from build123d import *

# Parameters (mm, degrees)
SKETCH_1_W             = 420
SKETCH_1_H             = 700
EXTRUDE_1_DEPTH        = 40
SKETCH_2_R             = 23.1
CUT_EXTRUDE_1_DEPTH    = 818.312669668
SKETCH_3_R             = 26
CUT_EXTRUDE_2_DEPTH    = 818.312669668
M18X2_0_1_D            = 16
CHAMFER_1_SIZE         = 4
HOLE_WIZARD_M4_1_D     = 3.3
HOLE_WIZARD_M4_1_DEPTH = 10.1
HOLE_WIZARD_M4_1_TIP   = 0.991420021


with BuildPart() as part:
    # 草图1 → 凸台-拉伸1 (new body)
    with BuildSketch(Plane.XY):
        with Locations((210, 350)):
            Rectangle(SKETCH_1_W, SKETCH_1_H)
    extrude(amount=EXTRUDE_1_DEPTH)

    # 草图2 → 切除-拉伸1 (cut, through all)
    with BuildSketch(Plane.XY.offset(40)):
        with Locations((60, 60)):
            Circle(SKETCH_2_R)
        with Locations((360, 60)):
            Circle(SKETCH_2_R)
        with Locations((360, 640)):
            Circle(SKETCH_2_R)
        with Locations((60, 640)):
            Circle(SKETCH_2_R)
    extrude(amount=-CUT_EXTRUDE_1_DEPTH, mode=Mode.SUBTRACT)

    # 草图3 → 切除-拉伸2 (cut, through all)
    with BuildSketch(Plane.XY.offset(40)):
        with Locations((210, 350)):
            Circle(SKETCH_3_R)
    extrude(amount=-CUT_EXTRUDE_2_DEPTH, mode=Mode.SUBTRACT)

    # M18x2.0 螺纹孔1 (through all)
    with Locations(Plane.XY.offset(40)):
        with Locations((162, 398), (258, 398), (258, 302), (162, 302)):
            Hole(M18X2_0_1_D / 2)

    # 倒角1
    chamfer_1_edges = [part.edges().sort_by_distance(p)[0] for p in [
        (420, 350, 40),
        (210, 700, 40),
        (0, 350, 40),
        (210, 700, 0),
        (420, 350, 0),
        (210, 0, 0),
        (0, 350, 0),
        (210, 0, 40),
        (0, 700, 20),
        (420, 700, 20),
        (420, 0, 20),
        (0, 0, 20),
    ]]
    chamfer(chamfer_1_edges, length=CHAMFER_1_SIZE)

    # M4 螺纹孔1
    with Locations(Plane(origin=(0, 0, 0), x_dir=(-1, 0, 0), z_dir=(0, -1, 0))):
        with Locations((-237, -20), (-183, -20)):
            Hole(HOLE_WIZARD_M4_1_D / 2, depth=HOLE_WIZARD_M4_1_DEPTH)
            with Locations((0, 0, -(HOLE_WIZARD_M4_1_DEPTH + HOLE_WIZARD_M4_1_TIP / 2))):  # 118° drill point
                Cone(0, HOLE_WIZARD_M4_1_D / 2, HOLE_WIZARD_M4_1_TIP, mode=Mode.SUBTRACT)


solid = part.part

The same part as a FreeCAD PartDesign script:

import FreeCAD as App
import Part
import Sketcher
Q = App.Units.Quantity


def edges_at(feature, points):
    """Names of the edges that pass closest to the given points."""
    edges = feature.Shape.Edges
    near = lambda p: min(range(len(edges)), key=lambda i: edges[i].distToShape(Part.Vertex(*p))[0])
    return sorted({f"Edge{near(p) + 1}" for p in points})


def add_polygon(sketch, points):
    """Adds a closed chain of lines whose ends are joined by coincident constraints."""
    first, n = sketch.GeometryCount, len(points)
    for a, b in zip(points, points[1:] + points[:1]):
        sketch.addGeometry(Part.LineSegment(App.Vector(*a, 0), App.Vector(*b, 0)), False)
    for i in range(n):
        sketch.addConstraint(Sketcher.Constraint("Coincident", first + i, 2, first + (i + 1) % n, 1))

doc = App.newDocument("Part")
params = doc.addObject("Spreadsheet::Sheet", "Params")
for row, (alias, value) in enumerate([
    ("sketch1_width", "420 mm"),
    ("sketch1_height", "700 mm"),
    ("pad1_length", "40 mm"),
    ("sketch2_diameter", "46.2 mm"),
    ("sketch3_diameter", "52 mm"),
    ("sketch4_diameter", "16 mm"),
    ("hole_diameter", "16 mm"),
    ("chamfer_size", "4 mm"),
    ("sketch5_diameter", "3.3 mm"),
    ("hole2_diameter", "3.3 mm"),
    ("hole2_depth", "10.1 mm"),
], start=1):
    params.set(f"A{row}", alias)
    params.set(f"B{row}", "=" + value)
    params.setAlias(f"B{row}", alias)

body = doc.addObject("PartDesign::Body", "Body")

# Sketch on XY plane
sketch1 = body.newObject("Sketcher::SketchObject", "Sketch")
sketch1.AttachmentSupport = (doc.getObject("XY_Plane"), [""])
sketch1.MapMode = "FlatFace"
add_polygon(sketch1, [(0, 700), (0, 0), (420, 0), (420, 700)])  # lines 0-3
sketch1.addConstraint(Sketcher.Constraint("Vertical", 0))
sketch1.addConstraint(Sketcher.Constraint("Horizontal", 1))
sketch1.addConstraint(Sketcher.Constraint("Vertical", 2))
sketch1.addConstraint(Sketcher.Constraint("Horizontal", 3))
sketch1.addConstraint(Sketcher.Constraint("Coincident", 0, 2, -1, 1))
sketch1.addConstraint(Sketcher.Constraint("DistanceX", 1, 1, 1, 2, Q("420 mm")))
sketch1.addConstraint(Sketcher.Constraint("DistanceY", 0, 2, 0, 1, Q("700 mm")))
sketch1.setExpression("Constraints[9]", "Params.sketch1_width")
sketch1.setExpression("Constraints[10]", "Params.sketch1_height")
pad1 = body.newObject("PartDesign::Pad", "Pad")
pad1.Profile = sketch1
pad1.setExpression("Length", "Params.pad1_length")

# Sketch on XY plane
sketch2 = body.newObject("Sketcher::SketchObject", "Sketch001")
sketch2.AttachmentSupport = (doc.getObject("XY_Plane"), [""])
sketch2.MapMode = "FlatFace"
sketch2.AttachmentOffset = App.Placement(App.Vector(0, 0, 40), App.Rotation())
sketch2.addGeometry(Part.Circle(App.Vector(60, 60, 0), App.Vector(0, 0, 1), 23), False)
sketch2.addGeometry(Part.Circle(App.Vector(360, 60, 0), App.Vector(0, 0, 1), 23), False)
sketch2.addGeometry(Part.Circle(App.Vector(360, 640, 0), App.Vector(0, 0, 1), 23), False)
sketch2.addGeometry(Part.Circle(App.Vector(60, 640, 0), App.Vector(0, 0, 1), 23), False)
sketch2.addConstraint(Sketcher.Constraint("Equal", 0, 1))
sketch2.addConstraint(Sketcher.Constraint("Equal", 1, 2))
sketch2.addConstraint(Sketcher.Constraint("Equal", 2, 3))
sketch2.addConstraint(Sketcher.Constraint("Horizontal", 0, 3, 1, 3))
sketch2.addConstraint(Sketcher.Constraint("Horizontal", 2, 3, 3, 3))
sketch2.addConstraint(Sketcher.Constraint("Vertical", 1, 3, 2, 3))
sketch2.addConstraint(Sketcher.Constraint("Vertical", 0, 3, 3, 3))
sketch2.addConstraint(Sketcher.Constraint("Diameter", 0, Q("46.2 mm")))
sketch2.addConstraint(Sketcher.Constraint("DistanceX", -1, 1, 0, 3, Q("60 mm")))
sketch2.addConstraint(Sketcher.Constraint("DistanceY", -1, 1, 0, 3, Q("60 mm")))
sketch2.addConstraint(Sketcher.Constraint("DistanceX", -1, 1, 1, 3, Q("360 mm")))
sketch2.addConstraint(Sketcher.Constraint("DistanceY", -1, 1, 2, 3, Q("640 mm")))
sketch2.setExpression("Constraints[7]", "Params.sketch2_diameter")
pocket1 = body.newObject("PartDesign::Pocket", "Pocket")
pocket1.Profile = sketch2
pocket1.Type = "ThroughAll"

# Sketch on XY plane
sketch3 = body.newObject("Sketcher::SketchObject", "Sketch002")
sketch3.AttachmentSupport = (doc.getObject("XY_Plane"), [""])
sketch3.MapMode = "FlatFace"
sketch3.AttachmentOffset = App.Placement(App.Vector(0, 0, 40), App.Rotation())
sketch3.addGeometry(Part.Circle(App.Vector(210, 350, 0), App.Vector(0, 0, 1), 26), False)
sketch3.addConstraint(Sketcher.Constraint("Diameter", 0, Q("52 mm")))
sketch3.addConstraint(Sketcher.Constraint("DistanceX", -1, 1, 0, 3, Q("210 mm")))
sketch3.addConstraint(Sketcher.Constraint("DistanceY", -1, 1, 0, 3, Q("350 mm")))
sketch3.setExpression("Constraints[0]", "Params.sketch3_diameter")
pocket2 = body.newObject("PartDesign::Pocket", "Pocket001")
pocket2.Profile = sketch3
pocket2.Type = "ThroughAll"

# Sketch on XY plane
sketch4 = body.newObject("Sketcher::SketchObject", "Sketch003")
sketch4.AttachmentSupport = (doc.getObject("XY_Plane"), [""])
sketch4.MapMode = "FlatFace"
sketch4.AttachmentOffset = App.Placement(App.Vector(0, 0, 40), App.Rotation())
sketch4.addGeometry(Part.Circle(App.Vector(162, 398, 0), App.Vector(0, 0, 1), 8), False)
sketch4.addGeometry(Part.Circle(App.Vector(258, 398, 0), App.Vector(0, 0, 1), 8), False)
sketch4.addGeometry(Part.Circle(App.Vector(258, 302, 0), App.Vector(0, 0, 1), 8), False)
sketch4.addGeometry(Part.Circle(App.Vector(162, 302, 0), App.Vector(0, 0, 1), 8), False)
sketch4.addConstraint(Sketcher.Constraint("Equal", 0, 1))
sketch4.addConstraint(Sketcher.Constraint("Equal", 1, 2))
sketch4.addConstraint(Sketcher.Constraint("Equal", 2, 3))
sketch4.addConstraint(Sketcher.Constraint("Horizontal", 0, 3, 1, 3))
sketch4.addConstraint(Sketcher.Constraint("Horizontal", 2, 3, 3, 3))
sketch4.addConstraint(Sketcher.Constraint("Vertical", 1, 3, 2, 3))
sketch4.addConstraint(Sketcher.Constraint("Vertical", 0, 3, 3, 3))
sketch4.addConstraint(Sketcher.Constraint("Diameter", 0, Q("16 mm")))
sketch4.addConstraint(Sketcher.Constraint("DistanceX", -1, 1, 0, 3, Q("162 mm")))
sketch4.addConstraint(Sketcher.Constraint("DistanceY", -1, 1, 0, 3, Q("398 mm")))
sketch4.addConstraint(Sketcher.Constraint("DistanceX", -1, 1, 1, 3, Q("258 mm")))
sketch4.addConstraint(Sketcher.Constraint("DistanceY", -1, 1, 2, 3, Q("302 mm")))
sketch4.setExpression("Constraints[7]", "Params.sketch4_diameter")
doc.recompute()
hole = body.newObject("PartDesign::Hole", "Hole")
hole.Profile = sketch4
hole.ThreadType = "None"
hole.setExpression("Diameter", "Params.hole_diameter")
hole.DepthType = "ThroughAll"
doc.recompute()

chamfer = body.newObject("PartDesign::Chamfer", "Chamfer")
chamfer.Base = (hole, edges_at(hole, [
    (420, 350, 40),
    (210, 700, 40),
    (0, 350, 40),
    (210, 700, 0),
    (420, 350, 0),
    (210, 0, 0),
    (0, 350, 0),
    (210, 0, 40),
    (0, 700, 20),
    (420, 700, 20),
    (420, 0, 20),
    (0, 0, 20),
]))
chamfer.setExpression("Size", "Params.chamfer_size")

# Sketch on XZ plane
sketch5 = body.newObject("Sketcher::SketchObject", "Sketch004")
sketch5.AttachmentSupport = (doc.getObject("XZ_Plane"), [""])
sketch5.MapMode = "FlatFace"
sketch5.addGeometry(Part.Circle(App.Vector(237, 20, 0), App.Vector(0, 0, 1), 1.6), False)
sketch5.addGeometry(Part.Circle(App.Vector(183, 20, 0), App.Vector(0, 0, 1), 1.6), False)
sketch5.addConstraint(Sketcher.Constraint("Equal", 0, 1))
sketch5.addConstraint(Sketcher.Constraint("Horizontal", 0, 3, 1, 3))
sketch5.addConstraint(Sketcher.Constraint("Diameter", 0, Q("3.3 mm")))
sketch5.addConstraint(Sketcher.Constraint("DistanceX", -1, 1, 0, 3, Q("237 mm")))
sketch5.addConstraint(Sketcher.Constraint("DistanceY", -1, 1, 0, 3, Q("20 mm")))
sketch5.addConstraint(Sketcher.Constraint("DistanceX", -1, 1, 1, 3, Q("183 mm")))
sketch5.setExpression("Constraints[2]", "Params.sketch5_diameter")
doc.recompute()
hole2 = body.newObject("PartDesign::Hole", "Hole001")
hole2.Profile = sketch5
hole2.ThreadType = "None"
hole2.setExpression("Diameter", "Params.hole2_diameter")
hole2.DepthType = "Dimension"
hole2.setExpression("Depth", "Params.hole2_depth")
hole2.DrillPoint = "Angled"
hole2.DrillPointAngle = 118

doc.recompute()
